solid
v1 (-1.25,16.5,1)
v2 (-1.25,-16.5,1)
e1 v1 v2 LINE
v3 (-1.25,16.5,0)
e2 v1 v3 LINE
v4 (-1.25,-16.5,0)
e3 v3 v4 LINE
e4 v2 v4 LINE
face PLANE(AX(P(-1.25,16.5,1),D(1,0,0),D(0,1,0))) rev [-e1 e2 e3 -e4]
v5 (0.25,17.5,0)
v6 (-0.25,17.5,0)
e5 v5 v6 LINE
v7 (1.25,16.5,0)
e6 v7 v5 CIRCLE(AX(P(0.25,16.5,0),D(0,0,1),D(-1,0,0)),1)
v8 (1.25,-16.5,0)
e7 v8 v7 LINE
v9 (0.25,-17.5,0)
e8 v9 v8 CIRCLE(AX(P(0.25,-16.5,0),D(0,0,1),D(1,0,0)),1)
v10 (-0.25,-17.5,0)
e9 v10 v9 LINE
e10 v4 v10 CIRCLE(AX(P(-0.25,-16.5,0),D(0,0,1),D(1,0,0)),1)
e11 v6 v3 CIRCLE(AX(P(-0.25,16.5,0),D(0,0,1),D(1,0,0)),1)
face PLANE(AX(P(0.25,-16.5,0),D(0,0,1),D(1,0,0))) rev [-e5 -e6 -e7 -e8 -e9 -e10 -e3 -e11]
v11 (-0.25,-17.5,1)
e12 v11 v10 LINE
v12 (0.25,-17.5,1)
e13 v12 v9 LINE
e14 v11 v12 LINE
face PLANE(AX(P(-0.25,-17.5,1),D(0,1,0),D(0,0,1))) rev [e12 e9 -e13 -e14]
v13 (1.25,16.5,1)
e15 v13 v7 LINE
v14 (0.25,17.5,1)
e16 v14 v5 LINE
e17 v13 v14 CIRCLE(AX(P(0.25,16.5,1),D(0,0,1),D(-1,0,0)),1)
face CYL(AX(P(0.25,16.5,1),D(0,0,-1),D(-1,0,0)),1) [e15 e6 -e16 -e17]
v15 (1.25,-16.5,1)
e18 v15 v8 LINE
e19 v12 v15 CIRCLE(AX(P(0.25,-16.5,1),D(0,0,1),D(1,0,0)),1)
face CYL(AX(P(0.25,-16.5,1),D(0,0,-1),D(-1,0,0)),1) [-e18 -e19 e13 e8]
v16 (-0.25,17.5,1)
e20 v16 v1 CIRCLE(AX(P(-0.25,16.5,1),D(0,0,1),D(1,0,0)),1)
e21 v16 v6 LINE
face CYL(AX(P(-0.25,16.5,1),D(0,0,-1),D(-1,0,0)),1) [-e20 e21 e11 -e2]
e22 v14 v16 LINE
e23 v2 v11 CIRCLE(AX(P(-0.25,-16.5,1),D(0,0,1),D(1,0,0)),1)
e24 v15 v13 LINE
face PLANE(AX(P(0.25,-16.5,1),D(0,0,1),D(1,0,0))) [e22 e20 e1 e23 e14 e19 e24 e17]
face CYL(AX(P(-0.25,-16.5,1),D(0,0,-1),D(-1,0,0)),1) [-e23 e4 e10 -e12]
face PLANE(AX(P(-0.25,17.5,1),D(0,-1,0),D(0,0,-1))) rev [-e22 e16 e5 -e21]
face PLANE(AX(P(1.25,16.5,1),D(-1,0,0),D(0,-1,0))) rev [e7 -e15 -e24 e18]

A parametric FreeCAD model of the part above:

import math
import FreeCAD as App
import Part
import Sketcher

doc = App.newDocument("Part")
body = doc.addObject("PartDesign::Body", "Body")

# Sketch on XY plane
sketch1 = body.newObject("Sketcher::SketchObject", "Sketch")
sketch1.AttachmentSupport = (doc.getObject("XY_Plane"), [""])
sketch1.MapMode = "FlatFace"
sketch1.addGeometry(Part.LineSegment(App.Vector(0.2, 17.5, 0), App.Vector(-0.2, 17.5, 0)), False)
sketch1.addGeometry(Part.ArcOfCircle(Part.Circle(App.Vector(-0.2, 16.5, 0), App.Vector(0, 0, 1), 1), math.radians(90), math.radians(180)), False)
sketch1.addGeometry(Part.LineSegment(App.Vector(-1.2, 16.5, 0), App.Vector(-1.2, -16.5, 0)), False)
sketch1.addGeometry(Part.ArcOfCircle(Part.Circle(App.Vector(-0.2, -16.5, 0), App.Vector(0, 0, 1), 1), math.radians(-180), math.radians(-90)), False)
sketch1.addGeometry(Part.LineSegment(App.Vector(-0.2, -17.5, 0), App.Vector(0.2, -17.5, 0)), False)
sketch1.addGeometry(Part.ArcOfCircle(Part.Circle(App.Vector(0.2, -16.5, 0), App.Vector(0, 0, 1), 1), math.radians(-90), math.radians(0)), False)
sketch1.addGeometry(Part.LineSegment(App.Vector(1.2, -16.5, 0), App.Vector(1.2, 16.5, 0)), False)
sketch1.addGeometry(Part.ArcOfCircle(Part.Circle(App.Vector(0.2, 16.5, 0), App.Vector(0, 0, 1), 1), math.radians(0), math.radians(90)), False)
sketch1.addConstraint(Sketcher.Constraint("Tangent", 0, 2, 1, 1))
sketch1.addConstraint(Sketcher.Constraint("Tangent", 1, 2, 2, 1))
sketch1.addConstraint(Sketcher.Constraint("Tangent", 2, 2, 3, 1))
sketch1.addConstraint(Sketcher.Constraint("Tangent", 3, 2, 4, 1))
sketch1.addConstraint(Sketcher.Constraint("Tangent", 4, 2, 5, 1))
sketch1.addConstraint(Sketcher.Constraint("Tangent", 5, 2, 6, 1))
sketch1.addConstraint(Sketcher.Constraint("Tangent", 6, 2, 7, 1))
sketch1.addConstraint(Sketcher.Constraint("Tangent", 7, 2, 0, 1))
sketch1.addConstraint(Sketcher.Constraint("Horizontal", 0))
sketch1.addConstraint(Sketcher.Constraint("Vertical", 2))
sketch1.addConstraint(Sketcher.Constraint("Horizontal", 4))
sketch1.addConstraint(Sketcher.Constraint("Vertical", 6))
sketch1.addConstraint(Sketcher.Constraint("Equal", 1, 3))
sketch1.addConstraint(Sketcher.Constraint("Equal", 3, 5))
sketch1.addConstraint(Sketcher.Constraint("Equal", 5, 7))
sketch1.addConstraint(Sketcher.Constraint("Symmetric", 1, 3, 5, 3, -1, 1))
sketch1.addConstraint(Sketcher.Constraint("Radius", 1, 1.0))
sketch1.addConstraint(Sketcher.Constraint("DistanceY", 2, 2, 2, 1, 33.0))
sketch1.addConstraint(Sketcher.Constraint("DistanceX", 0, 2, 0, 1, 0.5))
pad1 = body.newObject("PartDesign::Pad", "Pad")
pad1.Profile = sketch1
pad1.Length = 1

doc.recompute()
